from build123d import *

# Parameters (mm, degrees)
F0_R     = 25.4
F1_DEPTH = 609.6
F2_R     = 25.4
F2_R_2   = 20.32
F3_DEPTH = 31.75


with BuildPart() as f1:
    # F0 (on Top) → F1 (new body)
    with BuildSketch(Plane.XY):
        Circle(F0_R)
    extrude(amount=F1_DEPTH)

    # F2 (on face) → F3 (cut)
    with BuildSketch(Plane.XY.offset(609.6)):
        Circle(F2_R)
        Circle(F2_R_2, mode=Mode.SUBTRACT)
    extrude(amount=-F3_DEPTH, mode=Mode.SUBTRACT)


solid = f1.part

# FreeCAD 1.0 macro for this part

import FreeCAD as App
import Part
import Sketcher
from FreeCAD import Vector
Q = App.Units.Quantity

doc = App.newDocument("Part")
params = doc.addObject("Spreadsheet::Sheet", "Params")
for row, (alias, value) in enumerate([
    ("sketch1_diameter", "2 in"),
    ("pad1_length", "24 in"),
    ("sketch2_diameter", "2 in"),
    ("sketch2_diameter2", "1.6 in"),
    ("pocket1_length", "1.25 in"),
], start=1):
    params.set(f"A{row}", alias)
    params.set(f"B{row}", "=" + value)
    params.setAlias(f"B{row}", alias)

body = doc.addObject("PartDesign::Body", "Body")

sketch1 = body.newObject("Sketcher::SketchObject", "Sketch")
sketch1.AttachmentSupport = (doc.getObject("XY_Plane"), [""])
sketch1.MapMode = "FlatFace"
sketch1.addGeometry(Part.Circle(Vector(0, 0, 0), Vector(0, 0, 1), 25.4), False)
sketch1.addConstraint([
    Sketcher.Constraint("Coincident", 0, 3, -1, 1),
    Sketcher.Constraint("Diameter", 0, Q("2 in")),
])
sketch1.setExpression("Constraints[1]", "Params.sketch1_diameter")
pad1 = body.newObject("PartDesign::Pad", "Pad")
pad1.Profile = sketch1
pad1.setExpression("Length", "Params.pad1_length")

sketch2 = body.newObject("Sketcher::SketchObject", "Sketch001")
sketch2.AttachmentSupport = (doc.getObject("XY_Plane"), [""])
sketch2.MapMode = "FlatFace"
sketch2.AttachmentOffset = App.Placement(Vector(0, 0, 24 * 25.4), App.Rotation())
sketch2.addGeometry([
    Part.Circle(Vector(0, 0, 0), Vector(0, 0, 1), 25.4),
    Part.Circle(Vector(0, 0, 0), Vector(0, 0, 1), 20.32),
], False)
sketch2.addConstraint([
    Sketcher.Constraint("Coincident", 0, 3, -1, 1),
    Sketcher.Constraint("Coincident", 1, 3, -1, 1),
    Sketcher.Constraint("Diameter", 0, Q("2 in")),
    Sketcher.Constraint("Diameter", 1, Q("1.6 in")),
])
sketch2.setExpression("Constraints[2]", "Params.sketch2_diameter")
sketch2.setExpression("Constraints[3]", "Params.sketch2_diameter2")
pocket1 = body.newObject("PartDesign::Pocket", "Pocket")
pocket1.Profile = sketch2
pocket1.setExpression("Length", "Params.pocket1_length")

doc.recompute()
